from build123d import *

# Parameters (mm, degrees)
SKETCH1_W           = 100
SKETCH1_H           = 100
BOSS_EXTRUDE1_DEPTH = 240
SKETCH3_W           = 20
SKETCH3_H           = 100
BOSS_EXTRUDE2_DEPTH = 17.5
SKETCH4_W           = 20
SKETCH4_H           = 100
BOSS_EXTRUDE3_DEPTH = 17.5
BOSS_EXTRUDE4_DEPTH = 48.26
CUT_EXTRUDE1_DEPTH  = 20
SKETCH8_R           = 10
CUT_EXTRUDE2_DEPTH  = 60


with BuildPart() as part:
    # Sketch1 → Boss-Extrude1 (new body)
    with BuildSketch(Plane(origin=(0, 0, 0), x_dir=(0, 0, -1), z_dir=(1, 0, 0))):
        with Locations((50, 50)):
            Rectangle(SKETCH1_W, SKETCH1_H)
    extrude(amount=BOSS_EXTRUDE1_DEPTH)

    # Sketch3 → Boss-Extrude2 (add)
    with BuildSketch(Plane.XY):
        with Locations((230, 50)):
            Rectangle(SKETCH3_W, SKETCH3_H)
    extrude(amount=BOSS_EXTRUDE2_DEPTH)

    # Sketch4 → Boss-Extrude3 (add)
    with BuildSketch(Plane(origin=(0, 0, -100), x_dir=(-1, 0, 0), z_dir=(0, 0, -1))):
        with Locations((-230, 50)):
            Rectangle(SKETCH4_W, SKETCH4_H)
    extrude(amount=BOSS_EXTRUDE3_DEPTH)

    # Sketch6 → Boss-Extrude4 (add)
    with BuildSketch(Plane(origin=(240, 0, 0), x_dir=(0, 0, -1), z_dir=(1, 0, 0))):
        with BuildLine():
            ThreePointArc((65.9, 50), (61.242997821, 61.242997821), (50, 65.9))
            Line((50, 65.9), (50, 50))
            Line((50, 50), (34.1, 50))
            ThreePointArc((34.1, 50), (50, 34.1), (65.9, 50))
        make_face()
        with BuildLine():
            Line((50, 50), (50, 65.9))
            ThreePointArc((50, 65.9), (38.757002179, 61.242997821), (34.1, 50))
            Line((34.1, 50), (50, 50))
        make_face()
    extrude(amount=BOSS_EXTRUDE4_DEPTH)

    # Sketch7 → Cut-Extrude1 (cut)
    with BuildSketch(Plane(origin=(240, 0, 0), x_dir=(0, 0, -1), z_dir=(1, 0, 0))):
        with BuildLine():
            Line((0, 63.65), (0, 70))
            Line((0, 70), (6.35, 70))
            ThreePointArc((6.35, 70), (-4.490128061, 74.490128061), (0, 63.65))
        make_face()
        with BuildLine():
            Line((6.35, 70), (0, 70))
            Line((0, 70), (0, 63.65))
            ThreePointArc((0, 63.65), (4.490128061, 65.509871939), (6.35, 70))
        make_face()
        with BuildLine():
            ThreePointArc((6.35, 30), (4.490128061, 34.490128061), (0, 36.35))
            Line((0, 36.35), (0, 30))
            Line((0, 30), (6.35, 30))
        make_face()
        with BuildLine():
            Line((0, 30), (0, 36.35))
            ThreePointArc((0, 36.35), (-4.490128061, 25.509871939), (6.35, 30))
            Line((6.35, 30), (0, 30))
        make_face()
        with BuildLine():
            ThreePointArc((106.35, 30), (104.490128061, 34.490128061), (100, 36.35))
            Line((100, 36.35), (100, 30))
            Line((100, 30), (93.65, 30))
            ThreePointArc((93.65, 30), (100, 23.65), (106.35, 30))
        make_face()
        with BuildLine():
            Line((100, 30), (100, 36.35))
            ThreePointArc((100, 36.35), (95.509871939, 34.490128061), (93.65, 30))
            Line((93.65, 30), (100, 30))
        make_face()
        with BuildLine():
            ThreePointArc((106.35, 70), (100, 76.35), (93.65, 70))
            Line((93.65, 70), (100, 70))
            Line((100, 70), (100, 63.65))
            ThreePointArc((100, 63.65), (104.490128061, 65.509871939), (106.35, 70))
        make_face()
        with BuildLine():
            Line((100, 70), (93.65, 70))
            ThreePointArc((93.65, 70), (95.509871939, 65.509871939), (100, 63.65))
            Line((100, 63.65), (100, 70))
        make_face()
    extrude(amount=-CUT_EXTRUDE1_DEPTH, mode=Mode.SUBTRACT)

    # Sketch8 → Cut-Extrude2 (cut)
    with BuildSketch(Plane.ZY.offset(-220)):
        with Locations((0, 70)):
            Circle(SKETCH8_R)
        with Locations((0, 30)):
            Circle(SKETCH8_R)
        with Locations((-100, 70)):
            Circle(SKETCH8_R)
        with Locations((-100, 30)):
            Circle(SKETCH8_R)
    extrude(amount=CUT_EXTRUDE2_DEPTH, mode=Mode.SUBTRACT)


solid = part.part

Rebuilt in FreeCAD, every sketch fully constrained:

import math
import FreeCAD as App
import Part
import Sketcher
Q = App.Units.Quantity


def add_polygon(sketch, points):
    """Adds a closed chain of lines whose ends are joined by coincident constraints."""
    first, n = sketch.GeometryCount, len(points)
    for a, b in zip(points, points[1:] + points[:1]):
        sketch.addGeometry(Part.LineSegment(App.Vector(*a, 0), App.Vector(*b, 0)), False)
    for i in range(n):
        sketch.addConstraint(Sketcher.Constraint("Coincident", first + i, 2, first + (i + 1) % n, 1))

doc = App.newDocument("Part")
body = doc.addObject("PartDesign::Body", "Body")

sketch1 = doc.addObject("Sketcher::SketchObject", "Sketch")
body.addObject(sketch1)
sketch1.AttachmentSupport = (doc.YZ_Plane, [""])
sketch1.MapMode = "FlatFace"
add_polygon(sketch1, [(100, 0), (0, 0), (0, -100), (100, -100)])
sketch1.addConstraint([
    Sketcher.Constraint("Horizontal", 0),
    Sketcher.Constraint("Vertical", 1),
    Sketcher.Constraint("Horizontal", 2),
    Sketcher.Constraint("Vertical", 3),
    Sketcher.Constraint("Coincident", 0, 2, -1, 1),
    Sketcher.Constraint("Equal", 2, 1),
    Sketcher.Constraint("DistanceX", 0, 2, 0, 1, Q("100 mm")),
])
pad1 = doc.addObject("PartDesign::Pad", "Pad")
body.addObject(pad1)
pad1.Profile = sketch1
pad1.Length = 240

sketch2 = doc.addObject("Sketcher::SketchObject", "Sketch001")
body.addObject(sketch2)
sketch2.AttachmentSupport = (doc.XY_Plane, [""])
sketch2.MapMode = "FlatFace"
add_polygon(sketch2, [(220, 100), (220, 0), (240, 0), (240, 100)])
sketch2.addConstraint([
    Sketcher.Constraint("Vertical", 0),
    Sketcher.Constraint("Horizontal", 1),
    Sketcher.Constraint("Vertical", 2),
    Sketcher.Constraint("Horizontal", 3),
    Sketcher.Constraint("PointOnObject", 0, 2, -1),
    Sketcher.Constraint("DistanceX", 1, 1, 1, 2, Q("20 mm")),
    Sketcher.Constraint("DistanceY", 0, 2, 0, 1, Q("100 mm")),
    Sketcher.Constraint("DistanceX", -1, 1, 0, 2, Q("220 mm")),
])
pad2 = doc.addObject("PartDesign::Pad", "Pad001")
body.addObject(pad2)
pad2.Profile = sketch2
pad2.Length = 17.5

sketch3 = doc.addObject("Sketcher::SketchObject", "Sketch002")
body.addObject(sketch3)
sketch3.AttachmentSupport = (doc.XY_Plane, [""])
sketch3.MapMode = "FlatFace"
sketch3.AttachmentOffset = App.Placement(App.Vector(0, 0, -100), App.Rotation())
add_polygon(sketch3, [(240, 100), (240, 0), (220, 0), (220, 100)])
sketch3.addConstraint([
    Sketcher.Constraint("Vertical", 0),
    Sketcher.Constraint("Horizontal", 1),
    Sketcher.Constraint("Vertical", 2),
    Sketcher.Constraint("Horizontal", 3),
    Sketcher.Constraint("PointOnObject", 0, 2, -1),
    Sketcher.Constraint("DistanceX", 1, 2, 1, 1, Q("20 mm")),
    Sketcher.Constraint("DistanceY", 0, 2, 0, 1, Q("100 mm")),
    Sketcher.Constraint("DistanceX", -1, 1, 0, 2, Q("240 mm")),
])
pad3 = doc.addObject("PartDesign::Pad", "Pad002")
body.addObject(pad3)
pad3.Profile = sketch3
pad3.Length = 17.5
pad3.Reversed = True

sketch4 = doc.addObject("Sketcher::SketchObject", "Sketch003")
body.addObject(sketch4)
sketch4.AttachmentSupport = (doc.YZ_Plane, [""])
sketch4.MapMode = "FlatFace"
sketch4.AttachmentOffset = App.Placement(App.Vector(0, 0, 240), App.Rotation())
sketch4.addGeometry([
    Part.ArcOfCircle(Part.Circle(App.Vector(50, -50, 0), App.Vector(0, 0, 1), 16), math.radians(-90), math.radians(0)),
    Part.ArcOfCircle(Part.Circle(App.Vector(50, -50, 0), App.Vector(0, 0, 1), 16), math.radians(0), math.radians(90)),
    Part.ArcOfCircle(Part.Circle(App.Vector(50, -50, 0), App.Vector(0, 0, 1), 16), math.radians(90), math.radians(270)),
], False)
sketch4.addConstraint([
    Sketcher.Constraint("Tangent", 0, 2, 1, 1),
    Sketcher.Constraint("Tangent", 1, 2, 2, 1),
    Sketcher.Constraint("Tangent", 2, 2, 0, 1),
    Sketcher.Constraint("Horizontal", 2, 3, 0, 2),
    Sketcher.Constraint("Vertical", 2, 3, 1, 2),
    Sketcher.Constraint("Vertical", 1, 2, 2, 2),
    Sketcher.Constraint("Radius", 0, Q("15.9 mm")),
    Sketcher.Constraint("DistanceX", -1, 1, 0, 3, Q("50 mm")),
    Sketcher.Constraint("DistanceY", 0, 3, -1, 1, Q("50 mm")),
])
pad4 = doc.addObject("PartDesign::Pad", "Pad003")
body.addObject(pad4)
pad4.Profile = sketch4
pad4.Length = 48.26

sketch5 = doc.addObject("Sketcher::SketchObject", "Sketch004")
body.addObject(sketch5)
sketch5.AttachmentSupport = (doc.YZ_Plane, [""])
sketch5.MapMode = "FlatFace"
sketch5.AttachmentOffset = App.Placement(App.Vector(0, 0, 240), App.Rotation())
sketch5.addGeometry([
    Part.ArcOfCircle(Part.Circle(App.Vector(70, 0, 0), App.Vector(0, 0, 1), 6), math.radians(-90), math.radians(180)),
    Part.ArcOfCircle(Part.Circle(App.Vector(70, 0, 0), App.Vector(0, 0, 1), 6), math.radians(180), math.radians(270)),
    Part.ArcOfCircle(Part.Circle(App.Vector(30, 0, 0), App.Vector(0, 0, 1), 6), math.radians(-90), math.radians(0)),
    Part.ArcOfCircle(Part.Circle(App.Vector(30, 0, 0), App.Vector(0, 0, 1), 6), math.radians(0), math.radians(270)),
    Part.ArcOfCircle(Part.Circle(App.Vector(30, -100, 0), App.Vector(0, 0, 1), 6), math.radians(-90), math.radians(0)),
    Part.ArcOfCircle(Part.Circle(App.Vector(30, -100, 0), App.Vector(0, 0, 1), 6), math.radians(0), math.radians(90)),
    Part.ArcOfCircle(Part.Circle(App.Vector(30, -100, 0), App.Vector(0, 0, 1), 6), math.radians(90), math.radians(270)),
    Part.ArcOfCircle(Part.Circle(App.Vector(70, -100, 0), App.Vector(0, 0, 1), 6), math.radians(-90), math.radians(90)),
    Part.ArcOfCircle(Part.Circle(App.Vector(70, -100, 0), App.Vector(0, 0, 1), 6), math.radians(90), math.radians(180)),
    Part.ArcOfCircle(Part.Circle(App.Vector(70, -100, 0), App.Vector(0, 0, 1), 6), math.radians(180), math.radians(270)),
], False)
sketch5.addConstraint([
    Sketcher.Constraint("Tangent", 0, 1, 1, 2),
    Sketcher.Constraint("Coincident", 1, 1, 0, 2),
    Sketcher.Constraint("Tangent", 2, 1, 3, 2),
    Sketcher.Constraint("Coincident", 3, 1, 2, 2),
    Sketcher.Constraint("Tangent", 4, 2, 5, 1),
    Sketcher.Constraint("Tangent", 5, 2, 6, 1),
    Sketcher.Constraint("Tangent", 6, 2, 4, 1),
    Sketcher.Constraint("Tangent", 7, 2, 8, 1),
    Sketcher.Constraint("Tangent", 8, 2, 9, 1),
    Sketcher.Constraint("Tangent", 9, 2, 7, 1),
    Sketcher.Constraint("Equal", 1, 2),
    Sketcher.Constraint("Equal", 3, 4),
    Sketcher.Constraint("Equal", 6, 7),
    Sketcher.Constraint("PointOnObject", 0, 3, -1),
    Sketcher.Constraint("PointOnObject", 2, 3, -1),
    Sketcher.Constraint("PointOnObject", 1, 1, -1),
    Sketcher.Constraint("PointOnObject", 3, 1, -1),
    Sketcher.Constraint("Horizontal", 6, 3, 7, 3),
    Sketcher.Constraint("Horizontal", 9, 3, 4, 2),
    Sketcher.Constraint("Horizontal", 4, 2, 8, 2),
    Sketcher.Constraint("Vertical", 3, 3, 4, 3),
    Sketcher.Constraint("Vertical", 1, 3, 7, 3),
    Sketcher.Constraint("Vertical", 9, 3, 0, 1),
    Sketcher.Constraint("Vertical", 6, 3, 2, 1),
    Sketcher.Constraint("Vertical", 2, 1, 5, 2),
    Sketcher.Constraint("Vertical", 5, 2, 6, 2),
    Sketcher.Constraint("Vertical", 0, 1, 7, 2),
    Sketcher.Constraint("Vertical", 7, 2, 9, 2),
    Sketcher.Constraint("Radius", 0, Q("6.35 mm")),
    Sketcher.Constraint("DistanceX", -1, 1, 0, 3, Q("70 mm")),
    Sketcher.Constraint("DistanceX", -1, 1, 2, 3, Q("30 mm")),
    Sketcher.Constraint("DistanceY", 4, 3, -1, 1, Q("100 mm")),
])
pocket1 = doc.addObject("PartDesign::Pocket", "Pocket")
body.addObject(pocket1)
pocket1.Profile = sketch5
pocket1.Length = 20

sketch6 = doc.addObject("Sketcher::SketchObject", "Sketch005")
body.addObject(sketch6)
sketch6.AttachmentSupport = (doc.YZ_Plane, [""])
sketch6.MapMode = "FlatFace"
sketch6.AttachmentOffset = App.Placement(App.Vector(0, 0, 220), App.Rotation())
sketch6.addGeometry([
    Part.Circle(App.Vector(70, 0, 0), App.Vector(0, 0, 1), 10),
    Part.Circle(App.Vector(30, 0, 0), App.Vector(0, 0, 1), 10),
    Part.Circle(App.Vector(70, -100, 0), App.Vector(0, 0, 1), 10),
    Part.Circle(App.Vector(30, -100, 0), App.Vector(0, 0, 1), 10),
], False)
sketch6.addConstraint([
    Sketcher.Constraint("Equal", 0, 1),
    Sketcher.Constraint("Equal", 1, 2),
    Sketcher.Constraint("Equal", 2, 3),
    Sketcher.Constraint("PointOnObject", 0, 3, -1),
    Sketcher.Constraint("PointOnObject", 1, 3, -1),
    Sketcher.Constraint("Horizontal", 2, 3, 3, 3),
    Sketcher.Constraint("Vertical", 0, 3, 2, 3),
    Sketcher.Constraint("Vertical", 1, 3, 3, 3),
    Sketcher.Constraint("Diameter", 0, Q("20 mm")),
    Sketcher.Constraint("DistanceX", -1, 1, 0, 3, Q("70 mm")),
    Sketcher.Constraint("DistanceX", -1, 1, 1, 3, Q("30 mm")),
    Sketcher.Constraint("DistanceY", 2, 3, -1, 1, Q("100 mm")),
])
pocket2 = doc.addObject("PartDesign::Pocket", "Pocket001")
body.addObject(pocket2)
pocket2.Profile = sketch6
pocket2.Length = 60

doc.recompute()
